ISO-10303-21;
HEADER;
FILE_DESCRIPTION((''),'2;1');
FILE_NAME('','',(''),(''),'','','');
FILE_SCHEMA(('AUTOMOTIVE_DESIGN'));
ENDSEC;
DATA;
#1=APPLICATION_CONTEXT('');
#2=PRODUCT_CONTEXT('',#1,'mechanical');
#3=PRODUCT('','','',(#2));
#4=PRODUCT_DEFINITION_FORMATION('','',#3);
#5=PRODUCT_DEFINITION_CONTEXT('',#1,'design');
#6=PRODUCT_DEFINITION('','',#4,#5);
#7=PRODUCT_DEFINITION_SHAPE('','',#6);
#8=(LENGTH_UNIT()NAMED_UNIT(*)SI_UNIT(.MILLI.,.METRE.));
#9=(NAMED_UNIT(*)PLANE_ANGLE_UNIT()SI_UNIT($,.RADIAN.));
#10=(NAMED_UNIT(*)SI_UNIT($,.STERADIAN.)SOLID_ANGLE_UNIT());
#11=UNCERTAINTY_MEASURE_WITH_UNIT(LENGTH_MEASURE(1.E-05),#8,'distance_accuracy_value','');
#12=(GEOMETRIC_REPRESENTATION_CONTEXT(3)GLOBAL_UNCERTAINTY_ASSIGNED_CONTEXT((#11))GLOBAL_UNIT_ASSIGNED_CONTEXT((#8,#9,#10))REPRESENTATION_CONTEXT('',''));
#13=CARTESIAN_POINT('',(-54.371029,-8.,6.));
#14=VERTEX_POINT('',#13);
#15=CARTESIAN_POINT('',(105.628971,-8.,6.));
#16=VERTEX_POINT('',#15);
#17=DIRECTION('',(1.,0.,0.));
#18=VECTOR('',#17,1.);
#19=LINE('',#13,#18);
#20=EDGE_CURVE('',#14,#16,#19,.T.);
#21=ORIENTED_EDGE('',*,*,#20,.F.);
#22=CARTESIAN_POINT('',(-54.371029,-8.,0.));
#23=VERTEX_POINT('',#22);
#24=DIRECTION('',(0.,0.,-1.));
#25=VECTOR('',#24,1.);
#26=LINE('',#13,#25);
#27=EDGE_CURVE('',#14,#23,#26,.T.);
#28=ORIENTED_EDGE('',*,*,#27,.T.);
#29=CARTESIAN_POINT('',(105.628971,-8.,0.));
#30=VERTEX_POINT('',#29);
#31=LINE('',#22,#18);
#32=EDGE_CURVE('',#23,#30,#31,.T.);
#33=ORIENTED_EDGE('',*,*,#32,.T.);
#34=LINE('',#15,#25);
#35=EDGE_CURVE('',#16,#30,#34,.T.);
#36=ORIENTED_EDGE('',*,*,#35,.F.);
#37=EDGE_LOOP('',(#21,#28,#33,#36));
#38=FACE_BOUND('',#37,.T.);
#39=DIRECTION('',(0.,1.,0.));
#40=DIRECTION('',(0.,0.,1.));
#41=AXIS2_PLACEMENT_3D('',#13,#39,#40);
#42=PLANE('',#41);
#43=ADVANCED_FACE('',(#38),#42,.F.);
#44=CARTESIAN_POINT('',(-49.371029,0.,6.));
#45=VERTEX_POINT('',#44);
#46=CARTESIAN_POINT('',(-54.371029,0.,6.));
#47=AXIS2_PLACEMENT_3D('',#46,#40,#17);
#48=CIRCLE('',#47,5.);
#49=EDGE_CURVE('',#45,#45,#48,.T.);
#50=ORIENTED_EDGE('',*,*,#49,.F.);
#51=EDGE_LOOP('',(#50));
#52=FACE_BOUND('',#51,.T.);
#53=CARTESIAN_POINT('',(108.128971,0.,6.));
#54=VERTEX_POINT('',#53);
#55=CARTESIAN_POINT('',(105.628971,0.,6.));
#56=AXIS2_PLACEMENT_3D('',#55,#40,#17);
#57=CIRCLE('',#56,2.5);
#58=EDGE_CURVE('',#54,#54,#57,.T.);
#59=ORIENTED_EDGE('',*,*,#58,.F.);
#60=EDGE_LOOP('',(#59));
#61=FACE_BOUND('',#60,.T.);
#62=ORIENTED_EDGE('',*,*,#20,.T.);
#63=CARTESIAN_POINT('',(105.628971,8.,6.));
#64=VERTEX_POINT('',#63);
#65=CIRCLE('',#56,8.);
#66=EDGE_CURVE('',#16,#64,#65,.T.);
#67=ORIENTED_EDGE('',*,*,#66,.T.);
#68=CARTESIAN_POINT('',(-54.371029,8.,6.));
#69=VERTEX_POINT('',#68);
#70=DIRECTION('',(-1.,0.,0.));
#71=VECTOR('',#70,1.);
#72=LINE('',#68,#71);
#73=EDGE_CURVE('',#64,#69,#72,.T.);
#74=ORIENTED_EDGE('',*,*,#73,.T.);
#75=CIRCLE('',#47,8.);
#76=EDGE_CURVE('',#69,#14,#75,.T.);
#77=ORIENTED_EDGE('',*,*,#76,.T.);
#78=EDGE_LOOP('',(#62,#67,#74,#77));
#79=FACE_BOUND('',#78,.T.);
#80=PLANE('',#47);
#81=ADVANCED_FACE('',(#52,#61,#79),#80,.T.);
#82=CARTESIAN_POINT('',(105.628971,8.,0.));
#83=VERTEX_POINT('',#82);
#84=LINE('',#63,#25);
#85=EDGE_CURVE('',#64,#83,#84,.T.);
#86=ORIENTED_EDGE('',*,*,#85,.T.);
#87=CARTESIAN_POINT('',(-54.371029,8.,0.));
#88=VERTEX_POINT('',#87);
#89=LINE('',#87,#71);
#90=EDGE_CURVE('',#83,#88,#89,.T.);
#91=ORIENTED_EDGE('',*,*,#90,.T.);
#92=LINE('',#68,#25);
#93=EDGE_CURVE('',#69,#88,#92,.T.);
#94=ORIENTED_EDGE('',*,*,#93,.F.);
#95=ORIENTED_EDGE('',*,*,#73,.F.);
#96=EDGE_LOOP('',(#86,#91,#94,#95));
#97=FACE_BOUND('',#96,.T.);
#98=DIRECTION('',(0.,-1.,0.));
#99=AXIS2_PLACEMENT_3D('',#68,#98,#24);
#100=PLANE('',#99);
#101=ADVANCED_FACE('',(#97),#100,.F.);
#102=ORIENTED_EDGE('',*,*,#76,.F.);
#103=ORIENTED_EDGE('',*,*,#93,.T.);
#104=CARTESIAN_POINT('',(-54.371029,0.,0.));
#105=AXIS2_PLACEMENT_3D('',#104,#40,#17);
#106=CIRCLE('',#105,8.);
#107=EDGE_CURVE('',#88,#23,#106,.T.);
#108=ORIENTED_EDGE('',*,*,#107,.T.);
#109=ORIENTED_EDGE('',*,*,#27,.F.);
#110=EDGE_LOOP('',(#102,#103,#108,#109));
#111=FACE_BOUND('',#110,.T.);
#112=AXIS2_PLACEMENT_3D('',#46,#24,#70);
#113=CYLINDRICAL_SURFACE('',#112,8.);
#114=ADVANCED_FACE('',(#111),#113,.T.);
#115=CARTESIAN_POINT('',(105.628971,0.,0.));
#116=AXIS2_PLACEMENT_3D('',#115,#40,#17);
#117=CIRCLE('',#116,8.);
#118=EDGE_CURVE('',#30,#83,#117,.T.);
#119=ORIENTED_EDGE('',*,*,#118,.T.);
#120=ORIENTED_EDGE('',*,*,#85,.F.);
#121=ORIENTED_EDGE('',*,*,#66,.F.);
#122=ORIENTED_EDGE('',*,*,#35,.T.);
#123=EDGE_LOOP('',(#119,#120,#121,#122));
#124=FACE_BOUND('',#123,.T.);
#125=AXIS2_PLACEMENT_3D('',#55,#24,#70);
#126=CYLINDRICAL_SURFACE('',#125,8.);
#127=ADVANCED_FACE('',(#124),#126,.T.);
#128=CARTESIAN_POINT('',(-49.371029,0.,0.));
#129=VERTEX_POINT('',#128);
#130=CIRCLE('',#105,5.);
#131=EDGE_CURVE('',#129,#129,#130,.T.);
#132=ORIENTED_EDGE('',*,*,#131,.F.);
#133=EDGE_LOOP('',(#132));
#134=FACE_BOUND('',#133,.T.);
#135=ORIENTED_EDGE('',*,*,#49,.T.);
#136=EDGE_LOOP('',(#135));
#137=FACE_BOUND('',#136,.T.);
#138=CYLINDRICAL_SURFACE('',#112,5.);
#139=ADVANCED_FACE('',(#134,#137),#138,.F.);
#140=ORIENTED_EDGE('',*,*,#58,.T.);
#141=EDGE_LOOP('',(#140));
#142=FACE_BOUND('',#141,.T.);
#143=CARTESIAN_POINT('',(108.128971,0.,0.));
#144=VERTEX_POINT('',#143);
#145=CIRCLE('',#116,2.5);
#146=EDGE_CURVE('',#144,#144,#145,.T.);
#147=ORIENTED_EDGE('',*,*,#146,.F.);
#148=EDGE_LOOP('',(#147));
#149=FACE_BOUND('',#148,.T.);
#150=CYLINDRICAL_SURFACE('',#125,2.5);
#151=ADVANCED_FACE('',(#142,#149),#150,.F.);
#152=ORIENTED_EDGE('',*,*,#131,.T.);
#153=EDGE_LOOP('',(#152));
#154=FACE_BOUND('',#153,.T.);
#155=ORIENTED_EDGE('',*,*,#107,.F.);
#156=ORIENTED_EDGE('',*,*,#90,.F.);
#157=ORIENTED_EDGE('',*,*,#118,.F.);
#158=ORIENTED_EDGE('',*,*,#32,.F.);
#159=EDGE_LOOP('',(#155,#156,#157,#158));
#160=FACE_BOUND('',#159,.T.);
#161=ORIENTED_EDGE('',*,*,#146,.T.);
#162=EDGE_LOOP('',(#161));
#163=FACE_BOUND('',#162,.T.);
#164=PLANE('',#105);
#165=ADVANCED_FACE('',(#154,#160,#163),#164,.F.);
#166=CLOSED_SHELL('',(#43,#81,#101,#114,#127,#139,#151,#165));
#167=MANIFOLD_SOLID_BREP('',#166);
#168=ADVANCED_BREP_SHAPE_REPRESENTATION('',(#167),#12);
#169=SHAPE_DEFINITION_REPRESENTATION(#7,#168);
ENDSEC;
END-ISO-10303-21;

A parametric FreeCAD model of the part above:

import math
import FreeCAD as App
import Part
import Sketcher
from FreeCAD import Vector

doc = App.newDocument("Part")
body = doc.addObject("PartDesign::Body", "Body")

sketch1 = body.newObject("Sketcher::SketchObject", "Sketch")
sketch1.AttachmentSupport = (doc.getObject("XY_Plane"), [""])
sketch1.MapMode = "FlatFace"
sketch1.addGeometry([
    Part.LineSegment(Vector(105.628971, 8, 0), Vector(-54.371029, 8, 0)),
    Part.ArcOfCircle(Part.Circle(Vector(-54.371029, 0, 0), Vector(0, 0, 1), 8), math.radians(90), math.radians(270)),
    Part.LineSegment(Vector(-54.371029, -8, 0), Vector(105.628971, -8, 0)),
    Part.ArcOfCircle(Part.Circle(Vector(105.628971, 0, 0), Vector(0, 0, 1), 8), math.radians(-90), math.radians(90)),
    Part.Circle(Vector(105.628971, 0, 0), Vector(0, 0, 1), 2.5),
    Part.Circle(Vector(-54.371029, 0, 0), Vector(0, 0, 1), 5),
], False)
sketch1.addConstraint([
    Sketcher.Constraint("Tangent", 0, 2, 1, 1),
    Sketcher.Constraint("Tangent", 1, 2, 2, 1),
    Sketcher.Constraint("Tangent", 2, 2, 3, 1),
    Sketcher.Constraint("Tangent", 3, 2, 0, 1),
    Sketcher.Constraint("Horizontal", 0),
    Sketcher.Constraint("Horizontal", 2),
    Sketcher.Constraint("Coincident", 4, 3, 3, 3),
    Sketcher.Constraint("Coincident", 5, 3, 1, 3),
    Sketcher.Constraint("PointOnObject", 1, 3, -1),
    Sketcher.Constraint("Diameter", 4, 5.0),
    Sketcher.Constraint("Diameter", 5, 10.0),
    Sketcher.Constraint("Radius", 1, 8.0),
    Sketcher.Constraint("DistanceX", 0, 2, 0, 1, 160.0),
    Sketcher.Constraint("DistanceX", 1, 3, -1, 1, 54.371029),
])
pad1 = body.newObject("PartDesign::Pad", "Pad")
pad1.Profile = sketch1
pad1.Length = 6

doc.recompute()
